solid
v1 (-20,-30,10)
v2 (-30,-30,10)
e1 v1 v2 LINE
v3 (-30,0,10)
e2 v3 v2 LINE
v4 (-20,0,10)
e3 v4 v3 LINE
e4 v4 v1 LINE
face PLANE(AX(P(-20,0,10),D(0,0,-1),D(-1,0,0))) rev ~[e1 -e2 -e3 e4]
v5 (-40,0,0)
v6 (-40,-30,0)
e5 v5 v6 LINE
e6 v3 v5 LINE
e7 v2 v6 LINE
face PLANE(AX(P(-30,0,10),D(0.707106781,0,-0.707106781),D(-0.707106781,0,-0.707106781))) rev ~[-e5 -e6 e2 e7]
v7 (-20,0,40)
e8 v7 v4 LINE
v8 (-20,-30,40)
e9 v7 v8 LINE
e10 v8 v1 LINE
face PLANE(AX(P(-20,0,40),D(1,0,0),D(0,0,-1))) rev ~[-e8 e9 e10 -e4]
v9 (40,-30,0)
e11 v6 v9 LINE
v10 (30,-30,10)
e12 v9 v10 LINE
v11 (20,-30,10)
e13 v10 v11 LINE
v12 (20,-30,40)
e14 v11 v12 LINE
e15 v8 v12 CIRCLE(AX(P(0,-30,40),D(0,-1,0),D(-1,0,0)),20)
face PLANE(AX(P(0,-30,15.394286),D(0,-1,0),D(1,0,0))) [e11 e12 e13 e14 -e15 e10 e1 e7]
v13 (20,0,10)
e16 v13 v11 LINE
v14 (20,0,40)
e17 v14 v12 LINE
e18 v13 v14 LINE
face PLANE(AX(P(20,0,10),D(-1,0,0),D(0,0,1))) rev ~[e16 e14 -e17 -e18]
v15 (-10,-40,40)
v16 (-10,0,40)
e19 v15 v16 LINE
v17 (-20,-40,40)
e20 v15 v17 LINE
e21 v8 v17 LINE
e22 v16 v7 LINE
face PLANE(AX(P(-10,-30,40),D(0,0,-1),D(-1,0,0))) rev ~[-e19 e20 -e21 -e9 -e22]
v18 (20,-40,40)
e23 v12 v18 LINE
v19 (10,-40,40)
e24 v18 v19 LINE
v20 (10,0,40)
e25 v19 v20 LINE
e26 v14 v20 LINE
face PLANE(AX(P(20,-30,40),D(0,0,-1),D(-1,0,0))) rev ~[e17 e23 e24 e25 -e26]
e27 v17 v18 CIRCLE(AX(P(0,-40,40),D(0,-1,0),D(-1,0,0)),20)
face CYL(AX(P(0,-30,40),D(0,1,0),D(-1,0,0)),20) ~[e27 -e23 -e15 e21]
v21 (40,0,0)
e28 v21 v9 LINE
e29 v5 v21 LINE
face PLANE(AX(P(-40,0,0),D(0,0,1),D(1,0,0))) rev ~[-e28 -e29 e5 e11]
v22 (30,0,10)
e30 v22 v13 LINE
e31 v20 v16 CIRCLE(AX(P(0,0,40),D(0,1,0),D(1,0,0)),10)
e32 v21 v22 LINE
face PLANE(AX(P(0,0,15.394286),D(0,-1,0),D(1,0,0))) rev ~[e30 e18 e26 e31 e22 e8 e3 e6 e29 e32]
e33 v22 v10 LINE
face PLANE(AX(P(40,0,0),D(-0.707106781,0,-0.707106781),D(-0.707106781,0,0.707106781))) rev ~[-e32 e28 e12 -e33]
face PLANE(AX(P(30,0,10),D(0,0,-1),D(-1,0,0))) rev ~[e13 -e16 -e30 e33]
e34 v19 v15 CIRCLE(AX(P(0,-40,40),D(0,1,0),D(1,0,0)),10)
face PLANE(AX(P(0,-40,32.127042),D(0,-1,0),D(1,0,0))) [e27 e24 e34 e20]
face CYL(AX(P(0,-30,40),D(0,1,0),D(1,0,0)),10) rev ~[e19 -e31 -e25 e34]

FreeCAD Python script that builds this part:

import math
import FreeCAD as App
import Part
import Sketcher

V = App.Vector
Q = App.Units.Quantity

doc = App.newDocument("Part")
params = doc.addObject("Spreadsheet::Sheet", "Params")
for row, (alias, value) in enumerate([
    ("sketch1_radius", "10 mm"),
    ("sketch1_width", "80 mm"),
    ("sketch1_width2", "10 mm"),
    ("sketch1_height", "30 mm"),
    ("pad1_length", "30 mm"),
    ("sketch2_radius", "20 mm"),
    ("sketch2_radius2", "10 mm"),
    ("pad2_length", "10 mm"),
], start=1):
    params.set(f"A{row}", alias)
    params.set(f"B{row}", "=" + value)
    params.setAlias(f"B{row}", alias)

body = doc.addObject("PartDesign::Body", "Body")

sketch1 = body.newObject("Sketcher::SketchObject", "Sketch")
sketch1.AttachmentSupport = (doc.getObject("XZ_Plane"), [""])
sketch1.MapMode = "FlatFace"
sketch1.addGeometry(Part.LineSegment(V(-30, 10, 0), V(-40, 0, 0)), False)
sketch1.addGeometry(Part.LineSegment(V(-40, 0, 0), V(40, 0, 0)), False)
sketch1.addGeometry(Part.LineSegment(V(40, 0, 0), V(30, 10, 0)), False)
sketch1.addGeometry(Part.LineSegment(V(30, 10, 0), V(20, 10, 0)), False)
sketch1.addGeometry(Part.LineSegment(V(20, 10, 0), V(20, 40, 0)), False)
sketch1.addGeometry(Part.LineSegment(V(20, 40, 0), V(10, 40, 0)), False)
sketch1.addGeometry(Part.ArcOfCircle(Part.Circle(V(0, 40, 0), V(0, 0, 1), 10), math.radians(180), math.radians(360)), False)
sketch1.addGeometry(Part.LineSegment(V(-10, 40, 0), V(-20, 40, 0)), False)
sketch1.addGeometry(Part.LineSegment(V(-20, 40, 0), V(-20, 10, 0)), False)
sketch1.addGeometry(Part.LineSegment(V(-20, 10, 0), V(-30, 10, 0)), False)
sketch1.addConstraint(Sketcher.Constraint("Coincident", 0, 2, 1, 1))
sketch1.addConstraint(Sketcher.Constraint("Coincident", 1, 2, 2, 1))
sketch1.addConstraint(Sketcher.Constraint("Coincident", 2, 2, 3, 1))
sketch1.addConstraint(Sketcher.Constraint("Coincident", 3, 2, 4, 1))
sketch1.addConstraint(Sketcher.Constraint("Coincident", 4, 2, 5, 1))
sketch1.addConstraint(Sketcher.Constraint("Coincident", 5, 2, 6, 2))
sketch1.addConstraint(Sketcher.Constraint("Coincident", 6, 1, 7, 1))
sketch1.addConstraint(Sketcher.Constraint("Coincident", 7, 2, 8, 1))
sketch1.addConstraint(Sketcher.Constraint("Coincident", 8, 2, 9, 1))
sketch1.addConstraint(Sketcher.Constraint("Coincident", 9, 2, 0, 1))
sketch1.addConstraint(Sketcher.Constraint("Horizontal", 1))
sketch1.addConstraint(Sketcher.Constraint("Horizontal", 3))
sketch1.addConstraint(Sketcher.Constraint("Vertical", 4))
sketch1.addConstraint(Sketcher.Constraint("Horizontal", 5))
sketch1.addConstraint(Sketcher.Constraint("Horizontal", 7))
sketch1.addConstraint(Sketcher.Constraint("Vertical", 8))
sketch1.addConstraint(Sketcher.Constraint("Horizontal", 9))
sketch1.addConstraint(Sketcher.Constraint("Symmetric", 0, 2, 1, 2, -1, 1))
sketch1.addConstraint(Sketcher.Constraint("Symmetric", 5, 2, 6, 1, -2))
sketch1.addConstraint(Sketcher.Constraint("Symmetric", 3, 2, 8, 2, -2))
sketch1.addConstraint(Sketcher.Constraint("Perpendicular", 0, 2))
sketch1.addConstraint(Sketcher.Constraint("Horizontal", 6, 3, 4, 2))
sketch1.addConstraint(Sketcher.Constraint("Equal", 3, 5))
sketch1.addConstraint(Sketcher.Constraint("Equal", 7, 9))
sketch1.addConstraint(Sketcher.Constraint("Radius", 6, Q("10 mm")))
sketch1.addConstraint(Sketcher.Constraint("DistanceX", 1, 1, 1, 2, Q("80 mm")))
sketch1.addConstraint(Sketcher.Constraint("DistanceX", 3, 2, 3, 1, Q("10 mm")))
sketch1.addConstraint(Sketcher.Constraint("DistanceY", 4, 1, 4, 2, Q("30 mm")))
sketch1.setExpression("Constraints[24]", "Params.sketch1_radius")
sketch1.setExpression("Constraints[25]", "Params.sketch1_width")
sketch1.setExpression("Constraints[26]", "Params.sketch1_width2")
sketch1.setExpression("Constraints[27]", "Params.sketch1_height")
pad1 = body.newObject("PartDesign::Pad", "Pad")
pad1.Profile = sketch1
pad1.setExpression("Length", "Params.pad1_length")

sketch2 = body.newObject("Sketcher::SketchObject", "Sketch001")
sketch2.AttachmentSupport = (doc.getObject("XZ_Plane"), [""])
sketch2.MapMode = "FlatFace"
sketch2.AttachmentOffset = App.Placement(V(0, 0, 30), App.Rotation())
sketch2.addGeometry(Part.LineSegment(V(-10, 40, 0), V(-20, 40, 0)), False)
sketch2.addGeometry(Part.ArcOfCircle(Part.Circle(V(0, 40, 0), V(0, 0, 1), 20), math.radians(180), math.radians(360)), False)
sketch2.addGeometry(Part.LineSegment(V(20, 40, 0), V(10, 40, 0)), False)
sketch2.addGeometry(Part.ArcOfCircle(Part.Circle(V(0, 40, 0), V(0, 0, 1), 10), math.radians(180), math.radians(360)), False)
sketch2.addConstraint(Sketcher.Constraint("Coincident", 0, 2, 1, 1))
sketch2.addConstraint(Sketcher.Constraint("Coincident", 1, 2, 2, 1))
sketch2.addConstraint(Sketcher.Constraint("Coincident", 2, 2, 3, 2))
sketch2.addConstraint(Sketcher.Constraint("Coincident", 3, 1, 0, 1))
sketch2.addConstraint(Sketcher.Constraint("Horizontal", 0))
sketch2.addConstraint(Sketcher.Constraint("Horizontal", 2))
sketch2.addConstraint(Sketcher.Constraint("Coincident", 3, 3, 1, 3))
sketch2.addConstraint(Sketcher.Constraint("Symmetric", 0, 2, 1, 2, -2))
sketch2.addConstraint(Sketcher.Constraint("Horizontal", 3, 3, 0, 2))
sketch2.addConstraint(Sketcher.Constraint("Radius", 1, Q("20 mm")))
sketch2.addConstraint(Sketcher.Constraint("Radius", 3, Q("10 mm")))
sketch2.addConstraint(Sketcher.Constraint("DistanceY", -1, 1, 1, 3, Q("40 mm")))
sketch2.setExpression("Constraints[9]", "Params.sketch2_radius")
sketch2.setExpression("Constraints[10]", "Params.sketch2_radius2")
pad2 = body.newObject("PartDesign::Pad", "Pad001")
pad2.Profile = sketch2
pad2.setExpression("Length", "Params.pad2_length")

doc.recompute()
